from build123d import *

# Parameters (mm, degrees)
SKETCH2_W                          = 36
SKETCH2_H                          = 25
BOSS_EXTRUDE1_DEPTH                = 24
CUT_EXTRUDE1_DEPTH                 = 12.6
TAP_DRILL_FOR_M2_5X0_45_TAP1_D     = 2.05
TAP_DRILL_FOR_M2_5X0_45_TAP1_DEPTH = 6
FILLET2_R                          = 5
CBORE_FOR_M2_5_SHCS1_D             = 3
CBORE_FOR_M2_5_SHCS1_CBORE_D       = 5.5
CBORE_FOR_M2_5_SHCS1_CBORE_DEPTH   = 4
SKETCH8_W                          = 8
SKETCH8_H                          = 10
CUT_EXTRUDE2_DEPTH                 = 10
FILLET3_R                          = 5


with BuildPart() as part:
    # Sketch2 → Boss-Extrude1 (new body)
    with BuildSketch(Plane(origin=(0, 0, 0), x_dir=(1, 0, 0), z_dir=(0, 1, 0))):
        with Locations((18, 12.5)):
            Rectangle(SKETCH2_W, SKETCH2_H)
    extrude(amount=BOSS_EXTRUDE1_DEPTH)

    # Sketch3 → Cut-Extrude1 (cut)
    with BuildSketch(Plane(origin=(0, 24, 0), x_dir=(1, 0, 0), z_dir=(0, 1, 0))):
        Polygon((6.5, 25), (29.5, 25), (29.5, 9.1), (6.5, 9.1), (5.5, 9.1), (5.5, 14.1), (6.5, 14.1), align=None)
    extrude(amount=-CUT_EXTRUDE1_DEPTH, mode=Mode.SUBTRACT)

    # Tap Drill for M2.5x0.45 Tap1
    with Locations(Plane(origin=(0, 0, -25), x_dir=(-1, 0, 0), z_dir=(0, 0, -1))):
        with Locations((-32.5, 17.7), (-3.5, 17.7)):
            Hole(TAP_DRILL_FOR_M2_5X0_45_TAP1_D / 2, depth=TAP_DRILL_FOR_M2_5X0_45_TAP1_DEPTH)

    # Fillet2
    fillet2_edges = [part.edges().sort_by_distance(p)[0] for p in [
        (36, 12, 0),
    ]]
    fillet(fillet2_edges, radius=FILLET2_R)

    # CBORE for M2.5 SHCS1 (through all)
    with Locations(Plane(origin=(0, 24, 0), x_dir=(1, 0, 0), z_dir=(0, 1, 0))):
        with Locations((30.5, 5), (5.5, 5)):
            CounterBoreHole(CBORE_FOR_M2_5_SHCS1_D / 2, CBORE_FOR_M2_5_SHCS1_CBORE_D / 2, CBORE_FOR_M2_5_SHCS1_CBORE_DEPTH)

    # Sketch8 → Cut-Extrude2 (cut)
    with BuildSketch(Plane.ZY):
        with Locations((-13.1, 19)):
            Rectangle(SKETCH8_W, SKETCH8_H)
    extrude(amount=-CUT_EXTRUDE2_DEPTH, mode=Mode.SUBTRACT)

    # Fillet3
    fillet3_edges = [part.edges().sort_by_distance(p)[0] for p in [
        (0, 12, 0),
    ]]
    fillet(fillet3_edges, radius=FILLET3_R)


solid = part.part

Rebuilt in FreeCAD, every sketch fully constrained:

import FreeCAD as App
import Part
import Sketcher

V = App.Vector


def edges_at(feature, points):
    """Names of the edges that pass closest to the given points."""
    edges = feature.Shape.Edges
    near = lambda p: min(range(len(edges)), key=lambda i: edges[i].distToShape(Part.Vertex(*p))[0])
    return sorted({f"Edge{near(p) + 1}" for p in points})

doc = App.newDocument("Part")
params = doc.addObject("Spreadsheet::Sheet", "Params")
for row, (alias, value) in enumerate([
    ("sketch1_width", "36 mm"),
    ("sketch1_height", "25 mm"),
    ("pad1_length", "24 mm"),
    ("sketch2_width", "23 mm"),
    ("sketch2_width2", "1 mm"),
    ("sketch2_height", "5 mm"),
    ("sketch2_height2", "10.9 mm"),
    ("pocket1_length", "12.6 mm"),
    ("sketch3_diameter", "2.05 mm"),
    ("hole_diameter", "2.05 mm"),
    ("hole_depth", "6 mm"),
    ("fillet_radius", "5 mm"),
    ("sketch4_diameter", "3 mm"),
    ("hole2_diameter", "3 mm"),
    ("hole2_cbore_diameter", "5.5 mm"),
    ("hole2_cbore_depth", "4 mm"),
    ("sketch5_width", "10 mm"),
    ("sketch5_height", "8 mm"),
    ("pocket2_length", "10 mm"),
    ("fillet2_radius", "5 mm"),
], start=1):
    params.set(f"A{row}", alias)
    params.set(f"B{row}", "=" + value)
    params.setAlias(f"B{row}", alias)

body = doc.addObject("PartDesign::Body", "Body")

# Sketch on XZ plane
sketch1 = body.newObject("Sketcher::SketchObject", "Sketch")
sketch1.AttachmentSupport = (doc.getObject("XZ_Plane"), [""])
sketch1.MapMode = "FlatFace"
sketch1.addGeometry(Part.LineSegment(V(0, -25, 0), V(0, 0, 0)), False)
sketch1.addGeometry(Part.LineSegment(V(0, 0, 0), V(36, 0, 0)), False)
sketch1.addGeometry(Part.LineSegment(V(36, 0, 0), V(36, -25, 0)), False)
sketch1.addGeometry(Part.LineSegment(V(36, -25, 0), V(0, -25, 0)), False)
sketch1.addConstraint(Sketcher.Constraint("Coincident", 0, 2, 1, 1))
sketch1.addConstraint(Sketcher.Constraint("Coincident", 1, 2, 2, 1))
sketch1.addConstraint(Sketcher.Constraint("Coincident", 2, 2, 3, 1))
sketch1.addConstraint(Sketcher.Constraint("Coincident", 3, 2, 0, 1))
sketch1.addConstraint(Sketcher.Constraint("Vertical", 0))
sketch1.addConstraint(Sketcher.Constraint("Horizontal", 1))
sketch1.addConstraint(Sketcher.Constraint("Vertical", 2))
sketch1.addConstraint(Sketcher.Constraint("Horizontal", 3))
sketch1.addConstraint(Sketcher.Constraint("Coincident", 0, 2, -1, 1))
sketch1.addConstraint(Sketcher.Constraint("DistanceX", 1, 1, 1, 2, 36.0))
sketch1.addConstraint(Sketcher.Constraint("DistanceY", 0, 1, 0, 2, 25.0))
sketch1.setExpression("Constraints[9]", "Params.sketch1_width")
sketch1.setExpression("Constraints[10]", "Params.sketch1_height")
pad1 = body.newObject("PartDesign::Pad", "Pad")
pad1.Profile = sketch1
pad1.setExpression("Length", "Params.pad1_length")
pad1.Reversed = True

# Sketch on XZ plane
sketch2 = body.newObject("Sketcher::SketchObject", "Sketch001")
sketch2.AttachmentSupport = (doc.getObject("XZ_Plane"), [""])
sketch2.MapMode = "FlatFace"
sketch2.AttachmentOffset = App.Placement(V(0, 0, -24), App.Rotation())
sketch2.addGeometry(Part.LineSegment(V(29.5, -25, 0), V(6.5, -25, 0)), False)
sketch2.addGeometry(Part.LineSegment(V(6.5, -25, 0), V(6.5, -14.1, 0)), False)
sketch2.addGeometry(Part.LineSegment(V(6.5, -14.1, 0), V(5.5, -14.1, 0)), False)
sketch2.addGeometry(Part.LineSegment(V(5.5, -14.1, 0), V(5.5, -9.1, 0)), False)
sketch2.addGeometry(Part.LineSegment(V(5.5, -9.1, 0), V(29.5, -9.1, 0)), False)
sketch2.addGeometry(Part.LineSegment(V(29.5, -9.1, 0), V(29.5, -25, 0)), False)
sketch2.addConstraint(Sketcher.Constraint("Coincident", 0, 2, 1, 1))
sketch2.addConstraint(Sketcher.Constraint("Coincident", 1, 2, 2, 1))
sketch2.addConstraint(Sketcher.Constraint("Coincident", 2, 2, 3, 1))
sketch2.addConstraint(Sketcher.Constraint("Coincident", 3, 2, 4, 1))
sketch2.addConstraint(Sketcher.Constraint("Coincident", 4, 2, 5, 1))
sketch2.addConstraint(Sketcher.Constraint("Coincident", 5, 2, 0, 1))
sketch2.addConstraint(Sketcher.Constraint("Horizontal", 0))
sketch2.addConstraint(Sketcher.Constraint("Vertical", 1))
sketch2.addConstraint(Sketcher.Constraint("Horizontal", 2))
sketch2.addConstraint(Sketcher.Constraint("Vertical", 3))
sketch2.addConstraint(Sketcher.Constraint("Horizontal", 4))
sketch2.addConstraint(Sketcher.Constraint("Vertical", 5))
sketch2.addConstraint(Sketcher.Constraint("DistanceX", 0, 2, 0, 1, 23.0))
sketch2.addConstraint(Sketcher.Constraint("DistanceX", 2, 2, 2, 1, 1.0))
sketch2.addConstraint(Sketcher.Constraint("DistanceY", 3, 1, 3, 2, 5.0))
sketch2.addConstraint(Sketcher.Constraint("DistanceY", 1, 1, 1, 2, 10.9))
sketch2.addConstraint(Sketcher.Constraint("DistanceY", 0, 2, -1, 1, 25.0))
sketch2.addConstraint(Sketcher.Constraint("DistanceX", -1, 1, 0, 2, 6.5))
sketch2.setExpression("Constraints[12]", "Params.sketch2_width")
sketch2.setExpression("Constraints[13]", "Params.sketch2_width2")
sketch2.setExpression("Constraints[14]", "Params.sketch2_height")
sketch2.setExpression("Constraints[15]", "Params.sketch2_height2")
pocket1 = body.newObject("PartDesign::Pocket", "Pocket")
pocket1.Profile = sketch2
pocket1.setExpression("Length", "Params.pocket1_length")
pocket1.Reversed = True

# Sketch on XY plane
sketch3 = body.newObject("Sketcher::SketchObject", "Sketch002")
sketch3.AttachmentSupport = (doc.getObject("XY_Plane"), [""])
sketch3.MapMode = "FlatFace"
sketch3.AttachmentOffset = App.Placement(V(0, 0, -25), App.Rotation())
sketch3.addGeometry(Part.Circle(V(32.5, 17.7, 0), V(0, 0, 1), 1.025), False)
sketch3.addGeometry(Part.Circle(V(3.5, 17.7, 0), V(0, 0, 1), 1.025), False)
sketch3.addConstraint(Sketcher.Constraint("Equal", 0, 1))
sketch3.addConstraint(Sketcher.Constraint("Horizontal", 0, 3, 1, 3))
sketch3.addConstraint(Sketcher.Constraint("Diameter", 0, 2.05))
sketch3.addConstraint(Sketcher.Constraint("DistanceX", 1, 3, 0, 3, 29.0))
sketch3.addConstraint(Sketcher.Constraint("DistanceX", -1, 1, 0, 3, 32.5))
sketch3.addConstraint(Sketcher.Constraint("DistanceY", -1, 1, 0, 3, 17.7))
sketch3.setExpression("Constraints[2]", "Params.sketch3_diameter")
doc.recompute()
hole = body.newObject("PartDesign::Hole", "Hole")
hole.Profile = sketch3
hole.ThreadType = "None"
hole.setExpression("Diameter", "Params.hole_diameter")
hole.DepthType = "Dimension"
hole.setExpression("Depth", "Params.hole_depth")
hole.DrillPoint = "Flat"
hole.Reversed = True
doc.recompute()

fillet = body.newObject("PartDesign::Fillet", "Fillet")
fillet.Base = (hole, edges_at(hole, [(36, 12, 0)]))
fillet.setExpression("Radius", "Params.fillet_radius")

# Sketch on XZ plane
sketch4 = body.newObject("Sketcher::SketchObject", "Sketch003")
sketch4.AttachmentSupport = (doc.getObject("XZ_Plane"), [""])
sketch4.MapMode = "FlatFace"
sketch4.AttachmentOffset = App.Placement(V(0, 0, -24), App.Rotation())
sketch4.addGeometry(Part.Circle(V(30.5, -5, 0), V(0, 0, 1), 1.5), False)
sketch4.addGeometry(Part.Circle(V(5.5, -5, 0), V(0, 0, 1), 1.5), False)
sketch4.addConstraint(Sketcher.Constraint("Equal", 0, 1))
sketch4.addConstraint(Sketcher.Constraint("Horizontal", 0, 3, 1, 3))
sketch4.addConstraint(Sketcher.Constraint("Diameter", 0, 3.0))
sketch4.addConstraint(Sketcher.Constraint("DistanceY", 0, 3, -1, 1, 5.0))
sketch4.addConstraint(Sketcher.Constraint("DistanceX", 1, 3, 0, 3, 25.0))
sketch4.addConstraint(Sketcher.Constraint("DistanceX", -1, 1, 0, 3, 30.5))
sketch4.setExpression("Constraints[2]", "Params.sketch4_diameter")
doc.recompute()
hole2 = body.newObject("PartDesign::Hole", "Hole001")
hole2.Profile = sketch4
hole2.ThreadType = "None"
hole2.setExpression("Diameter", "Params.hole2_diameter")
hole2.DepthType = "ThroughAll"
hole2.HoleCutType = "Counterbore"
hole2.setExpression("HoleCutDiameter", "Params.hole2_cbore_diameter")
hole2.setExpression("HoleCutDepth", "Params.hole2_cbore_depth")
hole2.Reversed = True

# Sketch on YZ plane
sketch5 = body.newObject("Sketcher::SketchObject", "Sketch004")
sketch5.AttachmentSupport = (doc.getObject("YZ_Plane"), [""])
sketch5.MapMode = "FlatFace"
sketch5.addGeometry(Part.LineSegment(V(24, -17.1, 0), V(14, -17.1, 0)), False)
sketch5.addGeometry(Part.LineSegment(V(14, -17.1, 0), V(14, -9.1, 0)), False)
sketch5.addGeometry(Part.LineSegment(V(14, -9.1, 0), V(24, -9.1, 0)), False)
sketch5.addGeometry(Part.LineSegment(V(24, -9.1, 0), V(24, -17.1, 0)), False)
sketch5.addConstraint(Sketcher.Constraint("Coincident", 0, 2, 1, 1))
sketch5.addConstraint(Sketcher.Constraint("Coincident", 1, 2, 2, 1))
sketch5.addConstraint(Sketcher.Constraint("Coincident", 2, 2, 3, 1))
sketch5.addConstraint(Sketcher.Constraint("Coincident", 3, 2, 0, 1))
sketch5.addConstraint(Sketcher.Constraint("Horizontal", 0))
sketch5.addConstraint(Sketcher.Constraint("Vertical", 1))
sketch5.addConstraint(Sketcher.Constraint("Horizontal", 2))
sketch5.addConstraint(Sketcher.Constraint("Vertical", 3))
sketch5.addConstraint(Sketcher.Constraint("DistanceX", 0, 2, 0, 1, 10.0))
sketch5.addConstraint(Sketcher.Constraint("DistanceY", 1, 1, 1, 2, 8.0))
sketch5.addConstraint(Sketcher.Constraint("DistanceX", -1, 1, 0, 2, 14.0))
sketch5.addConstraint(Sketcher.Constraint("DistanceY", 0, 2, -1, 1, 17.1))
sketch5.setExpression("Constraints[8]", "Params.sketch5_width")
sketch5.setExpression("Constraints[9]", "Params.sketch5_height")
pocket2 = body.newObject("PartDesign::Pocket", "Pocket001")
pocket2.Profile = sketch5
pocket2.setExpression("Length", "Params.pocket2_length")
pocket2.Reversed = True
doc.recompute()

fillet2 = body.newObject("PartDesign::Fillet", "Fillet001")
fillet2.Base = (pocket2, edges_at(pocket2, [(0, 12, 0)]))
fillet2.setExpression("Radius", "Params.fillet2_radius")

doc.recompute()
